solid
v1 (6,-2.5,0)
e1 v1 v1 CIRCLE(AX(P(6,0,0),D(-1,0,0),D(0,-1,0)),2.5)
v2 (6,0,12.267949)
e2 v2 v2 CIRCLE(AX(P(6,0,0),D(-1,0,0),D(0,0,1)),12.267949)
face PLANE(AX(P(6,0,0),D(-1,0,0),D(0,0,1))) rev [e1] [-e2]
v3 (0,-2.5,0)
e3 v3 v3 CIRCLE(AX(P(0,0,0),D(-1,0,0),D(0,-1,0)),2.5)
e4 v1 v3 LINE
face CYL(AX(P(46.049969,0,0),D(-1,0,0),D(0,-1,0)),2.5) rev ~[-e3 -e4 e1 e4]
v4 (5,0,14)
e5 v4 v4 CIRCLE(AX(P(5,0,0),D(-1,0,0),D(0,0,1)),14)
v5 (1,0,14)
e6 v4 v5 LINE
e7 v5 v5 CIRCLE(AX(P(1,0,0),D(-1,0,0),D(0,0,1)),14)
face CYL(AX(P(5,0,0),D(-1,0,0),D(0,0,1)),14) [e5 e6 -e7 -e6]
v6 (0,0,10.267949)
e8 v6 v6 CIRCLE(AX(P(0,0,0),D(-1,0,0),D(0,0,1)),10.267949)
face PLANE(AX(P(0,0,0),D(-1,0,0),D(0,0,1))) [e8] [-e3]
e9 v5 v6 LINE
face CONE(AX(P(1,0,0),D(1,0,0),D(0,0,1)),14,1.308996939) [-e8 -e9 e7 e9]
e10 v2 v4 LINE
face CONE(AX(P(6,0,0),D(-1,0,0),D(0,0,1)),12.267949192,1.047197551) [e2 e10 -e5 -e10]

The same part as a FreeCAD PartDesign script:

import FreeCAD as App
import Part
import Sketcher

V = App.Vector
Q = App.Units.Quantity


def add_polygon(sketch, points):
    """Adds a closed chain of lines whose ends are joined by coincident constraints."""
    first, n = sketch.GeometryCount, len(points)
    for a, b in zip(points, points[1:] + points[:1]):
        sketch.addGeometry(Part.LineSegment(App.Vector(*a, 0), App.Vector(*b, 0)), False)
    for i in range(n):
        sketch.addConstraint(Sketcher.Constraint("Coincident", first + i, 2, first + (i + 1) % n, 1))

doc = App.newDocument("Part")
body = doc.addObject("PartDesign::Body", "Body")

sketch1 = doc.addObject("Sketcher::SketchObject", "Sketch")
body.addObject(sketch1)
sketch1.AttachmentSupport = (doc.XZ_Plane, [""])
sketch1.MapMode = "FlatFace"
add_polygon(sketch1, [(0, 10.3), (0, 0), (6, 0), (6, 12.3), (5, 14), (1, 14)])
sketch1.addConstraint(Sketcher.Constraint("Vertical", 0))
sketch1.addConstraint(Sketcher.Constraint("Horizontal", 1))
sketch1.addConstraint(Sketcher.Constraint("Vertical", 2))
sketch1.addConstraint(Sketcher.Constraint("Horizontal", 4))
sketch1.addConstraint(Sketcher.Constraint("Coincident", 0, 2, -1, 1))
sketch1.addConstraint(Sketcher.Constraint("DistanceX", 1, 1, 1, 2, Q("6 mm")))
sketch1.addConstraint(Sketcher.Constraint("DistanceX", 4, 2, 4, 1, Q("4 mm")))
sketch1.addConstraint(Sketcher.Constraint("Angle", 3, Q("120 deg")))
sketch1.addConstraint(Sketcher.Constraint("Angle", 5, Q("-105 deg")))
sketch1.addConstraint(Sketcher.Constraint("Distance", 3, Q("2 mm")))
sketch1.addConstraint(Sketcher.Constraint("DistanceY", -1, 1, 3, 2, Q("14 mm")))
revolution = doc.addObject("PartDesign::Revolution", "Revolution")
body.addObject(revolution)
revolution.Profile = sketch1
revolution.ReferenceAxis = (sketch1, ["H_Axis"])
revolution.Angle = 360

sketch2 = doc.addObject("Sketcher::SketchObject", "Sketch001")
body.addObject(sketch2)
sketch2.AttachmentSupport = (doc.YZ_Plane, [""])
sketch2.MapMode = "FlatFace"
sketch2.AttachmentOffset = App.Placement(V(0, 0, 6), App.Rotation())
sketch2.addGeometry(Part.Circle(V(0, 0, 0), V(0, 0, 1), 2.5), False)
sketch2.addConstraint(Sketcher.Constraint("Coincident", 0, 3, -1, 1))
sketch2.addConstraint(Sketcher.Constraint("Diameter", 0, Q("5 mm")))
doc.recompute()
hole = doc.addObject("PartDesign::Hole", "Hole")
body.addObject(hole)
hole.Profile = sketch2
hole.ThreadType = "None"
hole.Diameter = 5
hole.DepthType = "ThroughAll"

doc.recompute()
